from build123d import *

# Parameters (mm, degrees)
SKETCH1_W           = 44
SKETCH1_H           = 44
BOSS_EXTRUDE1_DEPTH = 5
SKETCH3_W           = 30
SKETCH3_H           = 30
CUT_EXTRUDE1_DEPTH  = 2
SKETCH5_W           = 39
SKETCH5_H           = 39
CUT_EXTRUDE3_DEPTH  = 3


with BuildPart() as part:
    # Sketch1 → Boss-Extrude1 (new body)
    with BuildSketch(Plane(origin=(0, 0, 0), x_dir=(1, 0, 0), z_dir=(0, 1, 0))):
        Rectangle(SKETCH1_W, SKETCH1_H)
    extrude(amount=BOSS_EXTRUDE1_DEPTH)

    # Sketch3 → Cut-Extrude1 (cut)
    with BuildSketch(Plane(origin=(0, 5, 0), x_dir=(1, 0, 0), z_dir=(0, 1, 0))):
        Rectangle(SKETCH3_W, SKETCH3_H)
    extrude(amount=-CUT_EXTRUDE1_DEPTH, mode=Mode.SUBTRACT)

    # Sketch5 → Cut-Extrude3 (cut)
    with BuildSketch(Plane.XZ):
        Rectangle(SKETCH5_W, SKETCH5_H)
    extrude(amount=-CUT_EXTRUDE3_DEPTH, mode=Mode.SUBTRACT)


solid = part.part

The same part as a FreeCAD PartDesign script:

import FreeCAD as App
import Part
import Sketcher
Q = App.Units.Quantity

doc = App.newDocument("Part")
body = doc.addObject("PartDesign::Body", "Body")

# Sketch on XZ plane
sketch1 = body.newObject("Sketcher::SketchObject", "Sketch")
sketch1.AttachmentSupport = (doc.getObject("XZ_Plane"), [""])
sketch1.MapMode = "FlatFace"
sketch1.addGeometry(Part.LineSegment(App.Vector(-22, -22, 0), App.Vector(-22, 22, 0)), False)
sketch1.addGeometry(Part.LineSegment(App.Vector(-22, 22, 0), App.Vector(22, 22, 0)), False)
sketch1.addGeometry(Part.LineSegment(App.Vector(22, 22, 0), App.Vector(22, -22, 0)), False)
sketch1.addGeometry(Part.LineSegment(App.Vector(22, -22, 0), App.Vector(-22, -22, 0)), False)
sketch1.addConstraint(Sketcher.Constraint("Coincident", 0, 2, 1, 1))
sketch1.addConstraint(Sketcher.Constraint("Coincident", 1, 2, 2, 1))
sketch1.addConstraint(Sketcher.Constraint("Coincident", 2, 2, 3, 1))
sketch1.addConstraint(Sketcher.Constraint("Coincident", 3, 2, 0, 1))
sketch1.addConstraint(Sketcher.Constraint("Vertical", 0))
sketch1.addConstraint(Sketcher.Constraint("Horizontal", 1))
sketch1.addConstraint(Sketcher.Constraint("Vertical", 2))
sketch1.addConstraint(Sketcher.Constraint("Horizontal", 3))
sketch1.addConstraint(Sketcher.Constraint("Symmetric", 0, 2, 2, 2, -1, 1))
sketch1.addConstraint(Sketcher.Constraint("Equal", 3, 0))
sketch1.addConstraint(Sketcher.Constraint("DistanceX", 1, 1, 1, 2, Q("44 mm")))
pad1 = body.newObject("PartDesign::Pad", "Pad")
pad1.Profile = sketch1
pad1.Length = 5
pad1.Reversed = True

# Sketch on XZ plane
sketch2 = body.newObject("Sketcher::SketchObject", "Sketch001")
sketch2.AttachmentSupport = (doc.getObject("XZ_Plane"), [""])
sketch2.MapMode = "FlatFace"
sketch2.AttachmentOffset = App.Placement(App.Vector(0, 0, -5), App.Rotation())
sketch2.addGeometry(Part.LineSegment(App.Vector(-15, -15, 0), App.Vector(-15, 15, 0)), False)
sketch2.addGeometry(Part.LineSegment(App.Vector(-15, 15, 0), App.Vector(15, 15, 0)), False)
sketch2.addGeometry(Part.LineSegment(App.Vector(15, 15, 0), App.Vector(15, -15, 0)), False)
sketch2.addGeometry(Part.LineSegment(App.Vector(15, -15, 0), App.Vector(-15, -15, 0)), False)
sketch2.addConstraint(Sketcher.Constraint("Coincident", 0, 2, 1, 1))
sketch2.addConstraint(Sketcher.Constraint("Coincident", 1, 2, 2, 1))
sketch2.addConstraint(Sketcher.Constraint("Coincident", 2, 2, 3, 1))
sketch2.addConstraint(Sketcher.Constraint("Coincident", 3, 2, 0, 1))
sketch2.addConstraint(Sketcher.Constraint("Vertical", 0))
sketch2.addConstraint(Sketcher.Constraint("Horizontal", 1))
sketch2.addConstraint(Sketcher.Constraint("Vertical", 2))
sketch2.addConstraint(Sketcher.Constraint("Horizontal", 3))
sketch2.addConstraint(Sketcher.Constraint("Symmetric", 0, 2, 2, 2, -1, 1))
sketch2.addConstraint(Sketcher.Constraint("Equal", 3, 0))
sketch2.addConstraint(Sketcher.Constraint("DistanceX", 1, 1, 1, 2, Q("30 mm")))
pocket1 = body.newObject("PartDesign::Pocket", "Pocket")
pocket1.Profile = sketch2
pocket1.Length = 2
pocket1.Reversed = True

# Sketch on XZ plane
sketch3 = body.newObject("Sketcher::SketchObject", "Sketch002")
sketch3.AttachmentSupport = (doc.getObject("XZ_Plane"), [""])
sketch3.MapMode = "FlatFace"
sketch3.addGeometry(Part.LineSegment(App.Vector(-20, 20, 0), App.Vector(-20, -20, 0)), False)
sketch3.addGeometry(Part.LineSegment(App.Vector(-20, -20, 0), App.Vector(20, -20, 0)), False)
sketch3.addGeometry(Part.LineSegment(App.Vector(20, -20, 0), App.Vector(20, 20, 0)), False)
sketch3.addGeometry(Part.LineSegment(App.Vector(20, 20, 0), App.Vector(-20, 20, 0)), False)
sketch3.addConstraint(Sketcher.Constraint("Coincident", 0, 2, 1, 1))
sketch3.addConstraint(Sketcher.Constraint("Coincident", 1, 2, 2, 1))
sketch3.addConstraint(Sketcher.Constraint("Coincident", 2, 2, 3, 1))
sketch3.addConstraint(Sketcher.Constraint("Coincident", 3, 2, 0, 1))
sketch3.addConstraint(Sketcher.Constraint("Vertical", 0))
sketch3.addConstraint(Sketcher.Constraint("Horizontal", 1))
sketch3.addConstraint(Sketcher.Constraint("Vertical", 2))
sketch3.addConstraint(Sketcher.Constraint("Horizontal", 3))
sketch3.addConstraint(Sketcher.Constraint("Symmetric", 0, 2, 2, 2, -1, 1))
sketch3.addConstraint(Sketcher.Constraint("Equal", 3, 0))
sketch3.addConstraint(Sketcher.Constraint("DistanceX", 1, 1, 1, 2, Q("39 mm")))
pocket2 = body.newObject("PartDesign::Pocket", "Pocket001")
pocket2.Profile = sketch3
pocket2.Length = 3

doc.recompute()
